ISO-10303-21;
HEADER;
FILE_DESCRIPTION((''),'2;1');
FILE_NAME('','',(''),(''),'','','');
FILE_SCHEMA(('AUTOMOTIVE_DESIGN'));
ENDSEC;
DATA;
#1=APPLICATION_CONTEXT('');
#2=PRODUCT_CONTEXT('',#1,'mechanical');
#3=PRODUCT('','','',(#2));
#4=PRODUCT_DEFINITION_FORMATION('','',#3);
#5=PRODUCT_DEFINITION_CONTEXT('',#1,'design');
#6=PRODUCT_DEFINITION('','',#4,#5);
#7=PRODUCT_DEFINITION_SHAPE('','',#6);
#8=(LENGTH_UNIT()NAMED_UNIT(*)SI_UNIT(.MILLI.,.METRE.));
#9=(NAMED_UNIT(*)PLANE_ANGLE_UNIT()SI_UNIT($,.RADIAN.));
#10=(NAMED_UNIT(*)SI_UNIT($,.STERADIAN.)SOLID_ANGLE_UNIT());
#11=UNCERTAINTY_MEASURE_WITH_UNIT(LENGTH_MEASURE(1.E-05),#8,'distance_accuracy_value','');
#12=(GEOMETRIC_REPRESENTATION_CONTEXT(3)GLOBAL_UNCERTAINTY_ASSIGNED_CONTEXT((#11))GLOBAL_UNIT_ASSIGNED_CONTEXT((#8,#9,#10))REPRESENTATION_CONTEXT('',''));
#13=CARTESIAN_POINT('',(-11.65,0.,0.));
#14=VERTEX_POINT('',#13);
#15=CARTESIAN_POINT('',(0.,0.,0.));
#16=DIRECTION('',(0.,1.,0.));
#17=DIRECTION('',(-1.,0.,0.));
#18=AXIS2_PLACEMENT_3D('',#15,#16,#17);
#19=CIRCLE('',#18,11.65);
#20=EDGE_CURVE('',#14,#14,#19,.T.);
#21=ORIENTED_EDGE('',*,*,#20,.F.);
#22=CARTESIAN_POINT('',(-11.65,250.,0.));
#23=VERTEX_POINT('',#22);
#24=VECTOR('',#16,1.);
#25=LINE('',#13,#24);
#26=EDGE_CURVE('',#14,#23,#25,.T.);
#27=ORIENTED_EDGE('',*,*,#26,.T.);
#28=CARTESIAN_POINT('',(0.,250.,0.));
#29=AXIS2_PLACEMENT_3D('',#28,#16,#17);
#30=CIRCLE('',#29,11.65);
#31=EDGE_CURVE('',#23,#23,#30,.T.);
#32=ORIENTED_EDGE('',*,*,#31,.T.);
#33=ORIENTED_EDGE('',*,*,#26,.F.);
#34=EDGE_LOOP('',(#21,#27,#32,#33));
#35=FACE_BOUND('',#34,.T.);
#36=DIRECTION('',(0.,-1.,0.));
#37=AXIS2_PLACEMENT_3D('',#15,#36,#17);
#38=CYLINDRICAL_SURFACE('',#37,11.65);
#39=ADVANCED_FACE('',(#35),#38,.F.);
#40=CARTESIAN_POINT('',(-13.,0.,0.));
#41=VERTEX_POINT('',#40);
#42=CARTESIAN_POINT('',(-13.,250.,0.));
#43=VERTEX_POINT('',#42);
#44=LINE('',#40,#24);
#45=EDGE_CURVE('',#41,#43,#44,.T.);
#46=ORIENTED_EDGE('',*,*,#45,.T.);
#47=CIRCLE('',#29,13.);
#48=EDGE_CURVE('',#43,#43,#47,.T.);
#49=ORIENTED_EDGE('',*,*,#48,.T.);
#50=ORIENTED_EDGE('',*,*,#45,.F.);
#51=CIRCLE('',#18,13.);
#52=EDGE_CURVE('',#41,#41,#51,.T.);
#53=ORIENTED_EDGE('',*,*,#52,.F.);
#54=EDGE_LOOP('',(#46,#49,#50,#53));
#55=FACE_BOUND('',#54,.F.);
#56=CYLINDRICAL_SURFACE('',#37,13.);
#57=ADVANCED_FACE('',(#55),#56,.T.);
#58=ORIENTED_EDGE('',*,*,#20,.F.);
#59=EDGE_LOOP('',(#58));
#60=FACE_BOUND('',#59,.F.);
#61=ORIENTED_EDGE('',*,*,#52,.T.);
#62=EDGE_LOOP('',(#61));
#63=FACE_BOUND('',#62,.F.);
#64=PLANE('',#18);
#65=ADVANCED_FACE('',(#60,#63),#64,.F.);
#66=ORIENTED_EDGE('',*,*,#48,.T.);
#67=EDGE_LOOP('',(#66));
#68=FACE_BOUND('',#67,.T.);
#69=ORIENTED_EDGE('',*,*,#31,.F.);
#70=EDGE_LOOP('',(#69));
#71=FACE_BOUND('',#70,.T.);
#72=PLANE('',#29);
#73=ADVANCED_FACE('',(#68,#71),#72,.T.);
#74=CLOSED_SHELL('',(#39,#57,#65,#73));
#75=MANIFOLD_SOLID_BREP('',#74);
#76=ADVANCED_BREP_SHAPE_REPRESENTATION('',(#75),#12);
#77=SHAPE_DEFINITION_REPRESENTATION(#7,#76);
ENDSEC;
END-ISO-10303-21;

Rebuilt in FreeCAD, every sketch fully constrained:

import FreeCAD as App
import Part
import Sketcher
Q = App.Units.Quantity

doc = App.newDocument("Part")
body = doc.addObject("PartDesign::Body", "Body")

# Sketch on XZ plane
sketch1 = body.newObject("Sketcher::SketchObject", "Sketch")
sketch1.AttachmentSupport = (doc.getObject("XZ_Plane"), [""])
sketch1.MapMode = "FlatFace"
sketch1.addGeometry([
    Part.Circle(App.Vector(0, 0, 0), App.Vector(0, 0, 1), 13),
    Part.Circle(App.Vector(0, 0, 0), App.Vector(0, 0, 1), 11.65),
], False)
sketch1.addConstraint([
    Sketcher.Constraint("Coincident", 0, 3, -1, 1),
    Sketcher.Constraint("Coincident", 1, 3, -1, 1),
    Sketcher.Constraint("Diameter", 0, Q("26 mm")),
    Sketcher.Constraint("Diameter", 1, Q("23.3 mm")),
])
pad1 = body.newObject("PartDesign::Pad", "Pad")
pad1.Profile = sketch1
pad1.Length = 250
pad1.Reversed = True

doc.recompute()
